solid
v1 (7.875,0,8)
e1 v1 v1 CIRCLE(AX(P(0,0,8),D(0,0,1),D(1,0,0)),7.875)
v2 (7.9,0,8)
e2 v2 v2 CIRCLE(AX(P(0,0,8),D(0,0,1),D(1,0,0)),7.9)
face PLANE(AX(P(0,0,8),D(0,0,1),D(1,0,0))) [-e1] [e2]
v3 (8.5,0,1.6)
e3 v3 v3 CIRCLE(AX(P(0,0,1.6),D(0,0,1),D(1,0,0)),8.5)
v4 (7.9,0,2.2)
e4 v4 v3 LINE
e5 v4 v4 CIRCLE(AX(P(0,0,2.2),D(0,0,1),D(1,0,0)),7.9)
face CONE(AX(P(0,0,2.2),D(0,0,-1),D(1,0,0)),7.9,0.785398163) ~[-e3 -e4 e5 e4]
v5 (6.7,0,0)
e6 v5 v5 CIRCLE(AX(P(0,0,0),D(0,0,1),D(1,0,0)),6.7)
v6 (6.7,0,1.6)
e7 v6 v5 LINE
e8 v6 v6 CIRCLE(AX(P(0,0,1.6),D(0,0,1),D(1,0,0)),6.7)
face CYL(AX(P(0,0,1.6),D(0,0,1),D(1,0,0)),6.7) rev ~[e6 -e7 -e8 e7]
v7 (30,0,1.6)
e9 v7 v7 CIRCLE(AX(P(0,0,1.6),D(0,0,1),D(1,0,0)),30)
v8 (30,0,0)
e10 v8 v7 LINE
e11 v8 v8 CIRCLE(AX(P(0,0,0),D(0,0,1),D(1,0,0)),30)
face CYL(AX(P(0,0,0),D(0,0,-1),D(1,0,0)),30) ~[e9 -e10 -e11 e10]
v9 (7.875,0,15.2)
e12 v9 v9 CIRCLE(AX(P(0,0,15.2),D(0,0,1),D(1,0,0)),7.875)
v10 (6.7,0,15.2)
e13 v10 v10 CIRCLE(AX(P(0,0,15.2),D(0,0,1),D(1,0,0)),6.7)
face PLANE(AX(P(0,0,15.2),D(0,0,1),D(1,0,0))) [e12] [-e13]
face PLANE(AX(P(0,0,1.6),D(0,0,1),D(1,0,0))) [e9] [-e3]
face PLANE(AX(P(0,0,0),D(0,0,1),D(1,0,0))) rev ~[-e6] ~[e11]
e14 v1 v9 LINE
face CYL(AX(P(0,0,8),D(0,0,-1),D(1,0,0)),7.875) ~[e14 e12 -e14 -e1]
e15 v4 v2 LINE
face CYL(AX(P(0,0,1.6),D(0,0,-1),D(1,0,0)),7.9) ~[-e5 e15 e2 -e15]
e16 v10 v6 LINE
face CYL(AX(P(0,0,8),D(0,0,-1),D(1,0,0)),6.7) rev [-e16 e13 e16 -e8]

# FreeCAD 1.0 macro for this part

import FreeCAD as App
import Part
import Sketcher


def edges_at(feature, points):
    """Names of the edges that pass closest to the given points."""
    edges = feature.Shape.Edges
    near = lambda p: min(range(len(edges)), key=lambda i: edges[i].distToShape(Part.Vertex(*p))[0])
    return sorted({f"Edge{near(p) + 1}" for p in points})

doc = App.newDocument("Part")
body = doc.addObject("PartDesign::Body", "Body")

sketch1 = body.newObject("Sketcher::SketchObject", "Sketch")
sketch1.AttachmentSupport = (doc.getObject("XY_Plane"), [""])
sketch1.MapMode = "FlatFace"
sketch1.addGeometry(Part.Circle(App.Vector(0, 0, 0), App.Vector(0, 0, 1), 30), False)
sketch1.addConstraint(Sketcher.Constraint("Coincident", 0, 3, -1, 1))
sketch1.addConstraint(Sketcher.Constraint("Diameter", 0, 60.0))
pad1 = body.newObject("PartDesign::Pad", "Pad")
pad1.Profile = sketch1
pad1.Length = 1.6

sketch2 = body.newObject("Sketcher::SketchObject", "Sketch001")
sketch2.AttachmentSupport = (doc.getObject("XY_Plane"), [""])
sketch2.MapMode = "FlatFace"
sketch2.AttachmentOffset = App.Placement(App.Vector(0, 0, 1.6), App.Rotation())
sketch2.addGeometry(Part.Circle(App.Vector(0, 0, 0), App.Vector(0, 0, 1), 7.9), False)
sketch2.addGeometry(Part.Circle(App.Vector(0, 0, 0), App.Vector(0, 0, 1), 6.7), False)
sketch2.addConstraint(Sketcher.Constraint("Coincident", 0, 3, -1, 1))
sketch2.addConstraint(Sketcher.Constraint("Coincident", 1, 3, -1, 1))
sketch2.addConstraint(Sketcher.Constraint("Diameter", 0, 15.8))
sketch2.addConstraint(Sketcher.Constraint("Diameter", 1, 13.4))
pad2 = body.newObject("PartDesign::Pad", "Pad001")
pad2.Profile = sketch2
pad2.Length = 6.4

sketch3 = body.newObject("Sketcher::SketchObject", "Sketch002")
sketch3.AttachmentSupport = (doc.getObject("XY_Plane"), [""])
sketch3.MapMode = "FlatFace"
sketch3.AttachmentOffset = App.Placement(App.Vector(0, 0, 8), App.Rotation())
sketch3.addGeometry(Part.Circle(App.Vector(0, 0, 0), App.Vector(0, 0, 1), 7.875), False)
sketch3.addGeometry(Part.Circle(App.Vector(0, 0, 0), App.Vector(0, 0, 1), 6.7), False)
sketch3.addConstraint(Sketcher.Constraint("Coincident", 0, 3, -1, 1))
sketch3.addConstraint(Sketcher.Constraint("Coincident", 1, 3, -1, 1))
sketch3.addConstraint(Sketcher.Constraint("Diameter", 1, 13.4))
sketch3.addConstraint(Sketcher.Constraint("Diameter", 0, 15.75))
pad3 = body.newObject("PartDesign::Pad", "Pad002")
pad3.Profile = sketch3
pad3.Length = 7.2

sketch4 = body.newObject("Sketcher::SketchObject", "Sketch003")
sketch4.AttachmentSupport = (doc.getObject("XY_Plane"), [""])
sketch4.MapMode = "FlatFace"
sketch4.AttachmentOffset = App.Placement(App.Vector(0, 0, 1.6), App.Rotation())
sketch4.addGeometry(Part.Circle(App.Vector(0, 0, 0), App.Vector(0, 0, 1), 6.7), False)
sketch4.addConstraint(Sketcher.Constraint("Coincident", 0, 3, -1, 1))
sketch4.addConstraint(Sketcher.Constraint("Diameter", 0, 13.4))
pocket1 = body.newObject("PartDesign::Pocket", "Pocket")
pocket1.Profile = sketch4
pocket1.Type = "ThroughAll"
doc.recompute()

chamfer = body.newObject("PartDesign::Chamfer", "Chamfer")
chamfer.Base = (pocket1, edges_at(pocket1, [(-7.9, 0, 1.6)]))
chamfer.Size = 0.6

doc.recompute()
